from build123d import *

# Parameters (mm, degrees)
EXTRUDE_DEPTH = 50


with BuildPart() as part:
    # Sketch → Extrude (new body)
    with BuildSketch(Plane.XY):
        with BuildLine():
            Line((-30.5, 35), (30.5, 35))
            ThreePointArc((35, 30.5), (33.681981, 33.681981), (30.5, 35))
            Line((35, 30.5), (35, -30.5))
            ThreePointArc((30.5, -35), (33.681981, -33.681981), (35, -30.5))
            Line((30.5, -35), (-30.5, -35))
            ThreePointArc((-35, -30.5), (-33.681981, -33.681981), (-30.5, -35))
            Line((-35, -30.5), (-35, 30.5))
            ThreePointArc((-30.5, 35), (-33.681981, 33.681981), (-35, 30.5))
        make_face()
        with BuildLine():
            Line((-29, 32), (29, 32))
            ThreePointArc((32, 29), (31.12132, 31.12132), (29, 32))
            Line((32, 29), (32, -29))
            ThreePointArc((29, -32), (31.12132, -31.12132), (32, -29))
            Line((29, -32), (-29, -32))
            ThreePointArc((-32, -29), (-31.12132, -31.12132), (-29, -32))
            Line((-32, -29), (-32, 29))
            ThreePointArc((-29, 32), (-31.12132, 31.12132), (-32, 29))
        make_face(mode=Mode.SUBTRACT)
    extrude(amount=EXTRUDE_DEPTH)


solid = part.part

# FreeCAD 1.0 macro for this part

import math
import FreeCAD as App
import Part
import Sketcher
from FreeCAD import Vector
Q = App.Units.Quantity

doc = App.newDocument("Part")
body = doc.addObject("PartDesign::Body", "Body")

# Sketch on XY plane
sketch1 = body.newObject("Sketcher::SketchObject", "Sketch")
sketch1.AttachmentSupport = (doc.getObject("XY_Plane"), [""])
sketch1.MapMode = "FlatFace"
sketch1.addGeometry([
    Part.LineSegment(Vector(30.5, 35, 0), Vector(-30.5, 35, 0)),  # 0
    Part.ArcOfCircle(Part.Circle(Vector(-30.5, 30.5, 0), Vector(0, 0, 1), 4.5), math.radians(90), math.radians(180)),  # 1
    Part.LineSegment(Vector(-35, 30.5, 0), Vector(-35, -30.5, 0)),  # 2
    Part.ArcOfCircle(Part.Circle(Vector(-30.5, -30.5, 0), Vector(0, 0, 1), 4.5), math.radians(180), math.radians(270)),  # 3
    Part.LineSegment(Vector(-30.5, -35, 0), Vector(30.5, -35, 0)),  # 4
    Part.ArcOfCircle(Part.Circle(Vector(30.5, -30.5, 0), Vector(0, 0, 1), 4.5), math.radians(-90), math.radians(0)),  # 5
    Part.LineSegment(Vector(35, -30.5, 0), Vector(35, 30.5, 0)),  # 6
    Part.ArcOfCircle(Part.Circle(Vector(30.5, 30.5, 0), Vector(0, 0, 1), 4.5), math.radians(0), math.radians(90)),  # 7
    Part.LineSegment(Vector(-29, 32, 0), Vector(29, 32, 0)),  # 8
    Part.ArcOfCircle(Part.Circle(Vector(29, 29, 0), Vector(0, 0, 1), 3), math.radians(0), math.radians(90)),  # 9
    Part.LineSegment(Vector(32, 29, 0), Vector(32, -29, 0)),  # 10
    Part.ArcOfCircle(Part.Circle(Vector(29, -29, 0), Vector(0, 0, 1), 3), math.radians(-90), math.radians(0)),  # 11
    Part.LineSegment(Vector(29, -32, 0), Vector(-29, -32, 0)),  # 12
    Part.ArcOfCircle(Part.Circle(Vector(-29, -29, 0), Vector(0, 0, 1), 3), math.radians(-180), math.radians(-90)),  # 13
    Part.LineSegment(Vector(-32, -29, 0), Vector(-32, 29, 0)),  # 14
    Part.ArcOfCircle(Part.Circle(Vector(-29, 29, 0), Vector(0, 0, 1), 3), math.radians(90), math.radians(180)),  # 15
], False)
sketch1.addConstraint([
    Sketcher.Constraint("Tangent", 0, 2, 1, 1),
    Sketcher.Constraint("Tangent", 1, 2, 2, 1),
    Sketcher.Constraint("Tangent", 2, 2, 3, 1),
    Sketcher.Constraint("Tangent", 3, 2, 4, 1),
    Sketcher.Constraint("Tangent", 4, 2, 5, 1),
    Sketcher.Constraint("Tangent", 5, 2, 6, 1),
    Sketcher.Constraint("Tangent", 6, 2, 7, 1),
    Sketcher.Constraint("Tangent", 7, 2, 0, 1),
    Sketcher.Constraint("Tangent", 8, 2, 9, 2),
    Sketcher.Constraint("Tangent", 9, 1, 10, 1),
    Sketcher.Constraint("Tangent", 10, 2, 11, 2),
    Sketcher.Constraint("Tangent", 11, 1, 12, 1),
    Sketcher.Constraint("Tangent", 12, 2, 13, 2),
    Sketcher.Constraint("Tangent", 13, 1, 14, 1),
    Sketcher.Constraint("Tangent", 14, 2, 15, 2),
    Sketcher.Constraint("Tangent", 15, 1, 8, 1),
    Sketcher.Constraint("Horizontal", 0),
    Sketcher.Constraint("Vertical", 2),
    Sketcher.Constraint("Horizontal", 4),
    Sketcher.Constraint("Vertical", 6),
    Sketcher.Constraint("Horizontal", 8),
    Sketcher.Constraint("Vertical", 10),
    Sketcher.Constraint("Horizontal", 12),
    Sketcher.Constraint("Vertical", 14),
    Sketcher.Constraint("Equal", 1, 3),
    Sketcher.Constraint("Equal", 3, 5),
    Sketcher.Constraint("Equal", 5, 7),
    Sketcher.Constraint("Equal", 9, 11),
    Sketcher.Constraint("Equal", 11, 13),
    Sketcher.Constraint("Equal", 13, 15),
    Sketcher.Constraint("Symmetric", 1, 3, 5, 3, -1, 1),
    Sketcher.Constraint("Symmetric", 9, 3, 13, 3, -1, 1),
    Sketcher.Constraint("Equal", 4, 2),
    Sketcher.Constraint("Equal", 12, 10),
    Sketcher.Constraint("Radius", 9, Q("3.000001 mm")),
    Sketcher.Constraint("Radius", 1, Q("4.499998 mm")),
    Sketcher.Constraint("DistanceX", 0, 2, 0, 1, Q("61 mm")),
    Sketcher.Constraint("DistanceX", 8, 1, 8, 2, Q("58 mm")),
])
pad1 = body.newObject("PartDesign::Pad", "Pad")
pad1.Profile = sketch1
pad1.Length = 50

doc.recompute()
